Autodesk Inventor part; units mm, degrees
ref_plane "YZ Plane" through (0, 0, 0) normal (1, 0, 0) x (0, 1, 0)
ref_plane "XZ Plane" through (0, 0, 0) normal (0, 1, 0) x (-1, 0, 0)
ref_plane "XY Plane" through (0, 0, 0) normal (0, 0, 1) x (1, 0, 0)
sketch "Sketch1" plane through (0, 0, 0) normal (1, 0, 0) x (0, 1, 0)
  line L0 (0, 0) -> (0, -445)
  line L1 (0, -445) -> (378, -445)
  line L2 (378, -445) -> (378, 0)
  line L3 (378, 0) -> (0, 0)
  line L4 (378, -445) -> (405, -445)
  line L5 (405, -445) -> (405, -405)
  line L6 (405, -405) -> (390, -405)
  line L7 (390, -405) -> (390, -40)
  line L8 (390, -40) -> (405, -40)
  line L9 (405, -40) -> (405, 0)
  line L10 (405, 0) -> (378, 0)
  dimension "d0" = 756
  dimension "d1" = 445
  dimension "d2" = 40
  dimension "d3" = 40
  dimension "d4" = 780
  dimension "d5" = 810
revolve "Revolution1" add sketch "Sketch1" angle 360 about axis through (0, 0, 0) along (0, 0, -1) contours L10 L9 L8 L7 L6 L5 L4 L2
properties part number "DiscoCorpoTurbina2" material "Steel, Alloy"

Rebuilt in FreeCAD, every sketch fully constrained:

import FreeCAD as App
import Part
import Sketcher
Q = App.Units.Quantity

doc = App.newDocument("Part")
body = doc.addObject("PartDesign::Body", "Body")

# Sketch on YZ plane
sketch1 = body.newObject("Sketcher::SketchObject", "Sketch")
sketch1.AttachmentSupport = (doc.getObject("YZ_Plane"), [""])
sketch1.MapMode = "FlatFace"
sketch1.addGeometry(Part.LineSegment(App.Vector(405, 0, 0), App.Vector(378, 0, 0)), False)
sketch1.addGeometry(Part.LineSegment(App.Vector(378, 0, 0), App.Vector(378, -445, 0)), False)
sketch1.addGeometry(Part.LineSegment(App.Vector(378, -445, 0), App.Vector(405, -445, 0)), False)
sketch1.addGeometry(Part.LineSegment(App.Vector(405, -445, 0), App.Vector(405, -405, 0)), False)
sketch1.addGeometry(Part.LineSegment(App.Vector(405, -405, 0), App.Vector(390, -405, 0)), False)
sketch1.addGeometry(Part.LineSegment(App.Vector(390, -405, 0), App.Vector(390, -40, 0)), False)
sketch1.addGeometry(Part.LineSegment(App.Vector(390, -40, 0), App.Vector(405, -40, 0)), False)
sketch1.addGeometry(Part.LineSegment(App.Vector(405, -40, 0), App.Vector(405, 0, 0)), False)
sketch1.addConstraint(Sketcher.Constraint("Coincident", 0, 2, 1, 1))
sketch1.addConstraint(Sketcher.Constraint("Coincident", 1, 2, 2, 1))
sketch1.addConstraint(Sketcher.Constraint("Coincident", 2, 2, 3, 1))
sketch1.addConstraint(Sketcher.Constraint("Coincident", 3, 2, 4, 1))
sketch1.addConstraint(Sketcher.Constraint("Coincident", 4, 2, 5, 1))
sketch1.addConstraint(Sketcher.Constraint("Coincident", 5, 2, 6, 1))
sketch1.addConstraint(Sketcher.Constraint("Coincident", 6, 2, 7, 1))
sketch1.addConstraint(Sketcher.Constraint("Coincident", 7, 2, 0, 1))
sketch1.addConstraint(Sketcher.Constraint("Horizontal", 0))
sketch1.addConstraint(Sketcher.Constraint("Vertical", 1))
sketch1.addConstraint(Sketcher.Constraint("Horizontal", 2))
sketch1.addConstraint(Sketcher.Constraint("Vertical", 3))
sketch1.addConstraint(Sketcher.Constraint("Horizontal", 4))
sketch1.addConstraint(Sketcher.Constraint("Vertical", 5))
sketch1.addConstraint(Sketcher.Constraint("Horizontal", 6))
sketch1.addConstraint(Sketcher.Constraint("Vertical", 7))
sketch1.addConstraint(Sketcher.Constraint("PointOnObject", 0, 2, -1))
sketch1.addConstraint(Sketcher.Constraint("Vertical", 3, 2, 6, 2))
sketch1.addConstraint(Sketcher.Constraint("Equal", 3, 7))
sketch1.addConstraint(Sketcher.Constraint("DistanceY", 1, 2, 1, 1, Q("445 mm")))
sketch1.addConstraint(Sketcher.Constraint("DistanceY", 3, 1, 3, 2, Q("40 mm")))
sketch1.addConstraint(Sketcher.Constraint("DistanceX", 0, 2, 0, 1, Q("27 mm")))
sketch1.addConstraint(Sketcher.Constraint("DistanceX", 4, 2, 4, 1, Q("15 mm")))
sketch1.addConstraint(Sketcher.Constraint("DistanceX", -1, 1, 0, 2, Q("378 mm")))
revolution = body.newObject("PartDesign::Revolution", "Revolution")
revolution.Profile = sketch1
revolution.ReferenceAxis = (sketch1, ["V_Axis"])
revolution.Angle = 360

doc.recompute()
